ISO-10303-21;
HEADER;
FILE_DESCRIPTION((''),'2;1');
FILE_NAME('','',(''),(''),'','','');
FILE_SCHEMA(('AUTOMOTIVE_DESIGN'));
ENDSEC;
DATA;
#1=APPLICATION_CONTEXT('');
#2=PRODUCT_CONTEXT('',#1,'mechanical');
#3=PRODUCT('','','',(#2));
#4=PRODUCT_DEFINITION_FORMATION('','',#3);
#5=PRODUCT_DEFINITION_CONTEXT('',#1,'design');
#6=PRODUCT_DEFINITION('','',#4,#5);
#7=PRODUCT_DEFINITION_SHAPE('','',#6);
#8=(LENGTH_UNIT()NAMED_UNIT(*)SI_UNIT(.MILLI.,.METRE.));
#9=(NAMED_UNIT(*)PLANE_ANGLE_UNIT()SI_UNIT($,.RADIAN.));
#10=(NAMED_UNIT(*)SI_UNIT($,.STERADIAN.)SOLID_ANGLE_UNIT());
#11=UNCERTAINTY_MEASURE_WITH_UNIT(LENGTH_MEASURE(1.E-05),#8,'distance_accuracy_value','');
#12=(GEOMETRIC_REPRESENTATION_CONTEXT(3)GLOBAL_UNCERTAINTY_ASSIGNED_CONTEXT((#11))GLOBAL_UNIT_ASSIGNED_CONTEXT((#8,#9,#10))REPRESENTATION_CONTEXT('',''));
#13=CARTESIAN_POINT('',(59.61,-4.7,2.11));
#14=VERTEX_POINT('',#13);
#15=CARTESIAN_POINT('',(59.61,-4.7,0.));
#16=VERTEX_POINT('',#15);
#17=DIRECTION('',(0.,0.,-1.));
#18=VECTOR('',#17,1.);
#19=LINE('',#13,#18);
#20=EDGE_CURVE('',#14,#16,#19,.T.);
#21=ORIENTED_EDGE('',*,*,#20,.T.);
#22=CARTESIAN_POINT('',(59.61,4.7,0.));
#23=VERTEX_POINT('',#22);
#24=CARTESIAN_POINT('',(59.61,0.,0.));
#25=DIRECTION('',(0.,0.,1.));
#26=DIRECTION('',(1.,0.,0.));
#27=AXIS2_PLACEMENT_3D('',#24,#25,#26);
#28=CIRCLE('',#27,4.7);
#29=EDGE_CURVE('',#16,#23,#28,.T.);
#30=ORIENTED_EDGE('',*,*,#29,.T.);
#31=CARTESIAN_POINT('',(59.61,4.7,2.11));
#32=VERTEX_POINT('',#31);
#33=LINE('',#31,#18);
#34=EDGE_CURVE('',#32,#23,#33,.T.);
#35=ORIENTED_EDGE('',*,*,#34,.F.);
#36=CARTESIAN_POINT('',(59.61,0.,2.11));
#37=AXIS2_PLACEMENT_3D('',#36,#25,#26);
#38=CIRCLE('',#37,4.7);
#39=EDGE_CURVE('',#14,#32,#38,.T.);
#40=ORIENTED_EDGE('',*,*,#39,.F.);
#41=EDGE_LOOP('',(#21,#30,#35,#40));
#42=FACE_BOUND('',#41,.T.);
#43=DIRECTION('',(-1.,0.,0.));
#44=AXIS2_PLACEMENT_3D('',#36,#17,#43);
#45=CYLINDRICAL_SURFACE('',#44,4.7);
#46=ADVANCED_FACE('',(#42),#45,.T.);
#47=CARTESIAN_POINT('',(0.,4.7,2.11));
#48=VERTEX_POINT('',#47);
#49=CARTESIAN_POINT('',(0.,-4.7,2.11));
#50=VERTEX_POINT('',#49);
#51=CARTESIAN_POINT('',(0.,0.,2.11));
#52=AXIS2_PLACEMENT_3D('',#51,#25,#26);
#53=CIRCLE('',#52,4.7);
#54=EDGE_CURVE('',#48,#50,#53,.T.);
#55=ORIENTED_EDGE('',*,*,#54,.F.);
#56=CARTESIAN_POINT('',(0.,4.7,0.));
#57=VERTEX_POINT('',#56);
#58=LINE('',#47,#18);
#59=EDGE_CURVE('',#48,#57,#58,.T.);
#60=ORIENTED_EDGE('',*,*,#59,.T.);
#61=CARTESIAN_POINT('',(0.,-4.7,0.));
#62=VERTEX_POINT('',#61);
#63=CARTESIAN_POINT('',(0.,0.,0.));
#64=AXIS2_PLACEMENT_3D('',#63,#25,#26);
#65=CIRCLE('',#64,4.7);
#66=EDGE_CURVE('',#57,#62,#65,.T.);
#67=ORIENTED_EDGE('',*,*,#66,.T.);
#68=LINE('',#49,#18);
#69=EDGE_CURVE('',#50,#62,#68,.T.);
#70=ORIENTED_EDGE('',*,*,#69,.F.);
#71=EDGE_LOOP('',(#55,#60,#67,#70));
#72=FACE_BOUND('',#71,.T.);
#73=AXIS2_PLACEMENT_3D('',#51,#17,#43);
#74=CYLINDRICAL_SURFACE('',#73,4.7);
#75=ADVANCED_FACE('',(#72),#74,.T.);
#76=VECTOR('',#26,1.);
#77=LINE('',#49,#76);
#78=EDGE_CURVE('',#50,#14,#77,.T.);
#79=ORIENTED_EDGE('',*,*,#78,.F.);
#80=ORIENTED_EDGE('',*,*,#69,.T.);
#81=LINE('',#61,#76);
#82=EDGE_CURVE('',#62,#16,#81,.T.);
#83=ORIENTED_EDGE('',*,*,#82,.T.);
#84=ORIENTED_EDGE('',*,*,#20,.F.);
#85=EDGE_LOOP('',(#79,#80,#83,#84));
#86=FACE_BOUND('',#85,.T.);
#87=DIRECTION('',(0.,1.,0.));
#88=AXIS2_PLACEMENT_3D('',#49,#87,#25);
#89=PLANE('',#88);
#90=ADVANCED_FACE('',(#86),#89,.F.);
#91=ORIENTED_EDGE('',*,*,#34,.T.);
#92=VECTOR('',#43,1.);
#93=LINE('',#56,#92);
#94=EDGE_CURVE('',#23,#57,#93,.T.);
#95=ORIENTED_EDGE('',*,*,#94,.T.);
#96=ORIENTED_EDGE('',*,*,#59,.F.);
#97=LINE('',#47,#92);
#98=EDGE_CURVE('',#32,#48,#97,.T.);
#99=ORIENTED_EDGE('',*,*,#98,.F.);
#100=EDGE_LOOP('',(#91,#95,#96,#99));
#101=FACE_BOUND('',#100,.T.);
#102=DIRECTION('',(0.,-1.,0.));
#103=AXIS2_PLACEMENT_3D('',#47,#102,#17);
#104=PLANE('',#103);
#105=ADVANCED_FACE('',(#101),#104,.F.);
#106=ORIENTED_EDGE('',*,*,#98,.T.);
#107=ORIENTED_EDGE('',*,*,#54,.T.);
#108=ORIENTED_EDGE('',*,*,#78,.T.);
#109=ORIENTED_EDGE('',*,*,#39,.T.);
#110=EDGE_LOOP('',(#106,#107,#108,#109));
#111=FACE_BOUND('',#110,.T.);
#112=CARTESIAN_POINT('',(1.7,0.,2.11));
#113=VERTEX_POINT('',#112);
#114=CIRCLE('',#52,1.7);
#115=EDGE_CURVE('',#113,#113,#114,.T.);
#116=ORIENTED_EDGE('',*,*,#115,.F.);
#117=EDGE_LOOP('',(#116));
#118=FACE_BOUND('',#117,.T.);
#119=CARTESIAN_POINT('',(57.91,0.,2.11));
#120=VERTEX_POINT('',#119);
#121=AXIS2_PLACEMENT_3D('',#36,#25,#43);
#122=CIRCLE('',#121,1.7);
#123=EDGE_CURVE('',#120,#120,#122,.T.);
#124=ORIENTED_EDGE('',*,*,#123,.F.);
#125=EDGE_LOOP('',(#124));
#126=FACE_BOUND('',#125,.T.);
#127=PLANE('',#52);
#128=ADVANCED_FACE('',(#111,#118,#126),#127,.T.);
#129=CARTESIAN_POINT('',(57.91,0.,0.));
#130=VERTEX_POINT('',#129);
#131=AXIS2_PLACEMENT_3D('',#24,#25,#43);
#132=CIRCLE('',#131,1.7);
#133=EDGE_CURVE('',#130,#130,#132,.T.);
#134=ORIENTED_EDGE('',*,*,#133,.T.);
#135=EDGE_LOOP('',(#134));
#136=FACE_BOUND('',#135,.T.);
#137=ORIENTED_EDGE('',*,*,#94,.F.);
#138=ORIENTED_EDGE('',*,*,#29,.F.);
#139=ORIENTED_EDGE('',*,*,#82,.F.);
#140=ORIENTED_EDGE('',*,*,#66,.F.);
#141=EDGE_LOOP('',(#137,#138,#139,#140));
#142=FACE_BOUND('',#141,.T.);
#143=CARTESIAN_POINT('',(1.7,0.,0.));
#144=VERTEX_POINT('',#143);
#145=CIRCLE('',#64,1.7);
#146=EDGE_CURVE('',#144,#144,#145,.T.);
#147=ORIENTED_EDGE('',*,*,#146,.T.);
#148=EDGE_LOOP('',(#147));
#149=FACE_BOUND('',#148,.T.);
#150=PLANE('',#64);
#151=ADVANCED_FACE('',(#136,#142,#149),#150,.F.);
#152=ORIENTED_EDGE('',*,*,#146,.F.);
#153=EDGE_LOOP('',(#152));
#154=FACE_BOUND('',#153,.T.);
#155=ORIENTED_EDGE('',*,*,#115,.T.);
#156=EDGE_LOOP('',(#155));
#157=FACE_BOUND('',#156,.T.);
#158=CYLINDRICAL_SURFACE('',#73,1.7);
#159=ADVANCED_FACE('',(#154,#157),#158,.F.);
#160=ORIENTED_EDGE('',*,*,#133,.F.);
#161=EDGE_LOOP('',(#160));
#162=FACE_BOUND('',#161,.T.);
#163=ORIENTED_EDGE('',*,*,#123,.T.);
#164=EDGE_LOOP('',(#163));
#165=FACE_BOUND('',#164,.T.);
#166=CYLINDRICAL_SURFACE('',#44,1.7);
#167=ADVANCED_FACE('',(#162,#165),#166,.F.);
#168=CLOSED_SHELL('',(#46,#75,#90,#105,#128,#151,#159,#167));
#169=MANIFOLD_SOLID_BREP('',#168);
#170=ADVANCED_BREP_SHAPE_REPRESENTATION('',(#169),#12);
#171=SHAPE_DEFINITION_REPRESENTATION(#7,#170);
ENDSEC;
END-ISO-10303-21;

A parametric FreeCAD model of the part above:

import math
import FreeCAD as App
import Part
import Sketcher
from FreeCAD import Vector

doc = App.newDocument("Part")
params = doc.addObject("Spreadsheet::Sheet", "Params")
for row, (alias, value) in enumerate([
    ("sketch1_diameter", "3.4 mm"),
    ("sketch1_radius", "4.7 mm"),
    ("sketch1_width", "59.61 mm"),
    ("pad1_length", "2.11 mm"),
], start=1):
    params.set(f"A{row}", alias)
    params.set(f"B{row}", "=" + value)
    params.setAlias(f"B{row}", alias)

body = doc.addObject("PartDesign::Body", "Body")

# Sketch on XY plane
sketch1 = body.newObject("Sketcher::SketchObject", "Sketch")
sketch1.AttachmentSupport = (doc.getObject("XY_Plane"), [""])
sketch1.MapMode = "FlatFace"
sketch1.addGeometry([
    Part.LineSegment(Vector(59.6, 4.7, 0), Vector(0, 4.7, 0)),  # 0
    Part.ArcOfCircle(Part.Circle(Vector(0, 0, 0), Vector(0, 0, 1), 4.7), math.radians(90), math.radians(270)),  # 1
    Part.LineSegment(Vector(0, -4.7, 0), Vector(59.6, -4.7, 0)),  # 2
    Part.ArcOfCircle(Part.Circle(Vector(59.6, 0, 0), Vector(0, 0, 1), 4.7), math.radians(-90), math.radians(90)),  # 3
    Part.Circle(Vector(59.6, 0, 0), Vector(0, 0, 1), 1.7),  # 4
    Part.Circle(Vector(0, 0, 0), Vector(0, 0, 1), 1.7),  # 5
], False)
sketch1.addConstraint([
    Sketcher.Constraint("Tangent", 0, 2, 1, 1),
    Sketcher.Constraint("Tangent", 1, 2, 2, 1),
    Sketcher.Constraint("Tangent", 2, 2, 3, 1),
    Sketcher.Constraint("Tangent", 3, 2, 0, 1),
    Sketcher.Constraint("Horizontal", 0),
    Sketcher.Constraint("Horizontal", 2),
    Sketcher.Constraint("Coincident", 1, 3, -1, 1),
    Sketcher.Constraint("Coincident", 5, 3, -1, 1),
    Sketcher.Constraint("Coincident", 4, 3, 3, 3),
    Sketcher.Constraint("Equal", 4, 5),
    Sketcher.Constraint("Diameter", 4, 3.4),
    Sketcher.Constraint("Radius", 1, 4.7),
    Sketcher.Constraint("DistanceX", 0, 2, 0, 1, 59.61),
])
sketch1.setExpression("Constraints[10]", "Params.sketch1_diameter")
sketch1.setExpression("Constraints[11]", "Params.sketch1_radius")
sketch1.setExpression("Constraints[12]", "Params.sketch1_width")
pad1 = body.newObject("PartDesign::Pad", "Pad")
pad1.Profile = sketch1
pad1.setExpression("Length", "Params.pad1_length")

doc.recompute()
